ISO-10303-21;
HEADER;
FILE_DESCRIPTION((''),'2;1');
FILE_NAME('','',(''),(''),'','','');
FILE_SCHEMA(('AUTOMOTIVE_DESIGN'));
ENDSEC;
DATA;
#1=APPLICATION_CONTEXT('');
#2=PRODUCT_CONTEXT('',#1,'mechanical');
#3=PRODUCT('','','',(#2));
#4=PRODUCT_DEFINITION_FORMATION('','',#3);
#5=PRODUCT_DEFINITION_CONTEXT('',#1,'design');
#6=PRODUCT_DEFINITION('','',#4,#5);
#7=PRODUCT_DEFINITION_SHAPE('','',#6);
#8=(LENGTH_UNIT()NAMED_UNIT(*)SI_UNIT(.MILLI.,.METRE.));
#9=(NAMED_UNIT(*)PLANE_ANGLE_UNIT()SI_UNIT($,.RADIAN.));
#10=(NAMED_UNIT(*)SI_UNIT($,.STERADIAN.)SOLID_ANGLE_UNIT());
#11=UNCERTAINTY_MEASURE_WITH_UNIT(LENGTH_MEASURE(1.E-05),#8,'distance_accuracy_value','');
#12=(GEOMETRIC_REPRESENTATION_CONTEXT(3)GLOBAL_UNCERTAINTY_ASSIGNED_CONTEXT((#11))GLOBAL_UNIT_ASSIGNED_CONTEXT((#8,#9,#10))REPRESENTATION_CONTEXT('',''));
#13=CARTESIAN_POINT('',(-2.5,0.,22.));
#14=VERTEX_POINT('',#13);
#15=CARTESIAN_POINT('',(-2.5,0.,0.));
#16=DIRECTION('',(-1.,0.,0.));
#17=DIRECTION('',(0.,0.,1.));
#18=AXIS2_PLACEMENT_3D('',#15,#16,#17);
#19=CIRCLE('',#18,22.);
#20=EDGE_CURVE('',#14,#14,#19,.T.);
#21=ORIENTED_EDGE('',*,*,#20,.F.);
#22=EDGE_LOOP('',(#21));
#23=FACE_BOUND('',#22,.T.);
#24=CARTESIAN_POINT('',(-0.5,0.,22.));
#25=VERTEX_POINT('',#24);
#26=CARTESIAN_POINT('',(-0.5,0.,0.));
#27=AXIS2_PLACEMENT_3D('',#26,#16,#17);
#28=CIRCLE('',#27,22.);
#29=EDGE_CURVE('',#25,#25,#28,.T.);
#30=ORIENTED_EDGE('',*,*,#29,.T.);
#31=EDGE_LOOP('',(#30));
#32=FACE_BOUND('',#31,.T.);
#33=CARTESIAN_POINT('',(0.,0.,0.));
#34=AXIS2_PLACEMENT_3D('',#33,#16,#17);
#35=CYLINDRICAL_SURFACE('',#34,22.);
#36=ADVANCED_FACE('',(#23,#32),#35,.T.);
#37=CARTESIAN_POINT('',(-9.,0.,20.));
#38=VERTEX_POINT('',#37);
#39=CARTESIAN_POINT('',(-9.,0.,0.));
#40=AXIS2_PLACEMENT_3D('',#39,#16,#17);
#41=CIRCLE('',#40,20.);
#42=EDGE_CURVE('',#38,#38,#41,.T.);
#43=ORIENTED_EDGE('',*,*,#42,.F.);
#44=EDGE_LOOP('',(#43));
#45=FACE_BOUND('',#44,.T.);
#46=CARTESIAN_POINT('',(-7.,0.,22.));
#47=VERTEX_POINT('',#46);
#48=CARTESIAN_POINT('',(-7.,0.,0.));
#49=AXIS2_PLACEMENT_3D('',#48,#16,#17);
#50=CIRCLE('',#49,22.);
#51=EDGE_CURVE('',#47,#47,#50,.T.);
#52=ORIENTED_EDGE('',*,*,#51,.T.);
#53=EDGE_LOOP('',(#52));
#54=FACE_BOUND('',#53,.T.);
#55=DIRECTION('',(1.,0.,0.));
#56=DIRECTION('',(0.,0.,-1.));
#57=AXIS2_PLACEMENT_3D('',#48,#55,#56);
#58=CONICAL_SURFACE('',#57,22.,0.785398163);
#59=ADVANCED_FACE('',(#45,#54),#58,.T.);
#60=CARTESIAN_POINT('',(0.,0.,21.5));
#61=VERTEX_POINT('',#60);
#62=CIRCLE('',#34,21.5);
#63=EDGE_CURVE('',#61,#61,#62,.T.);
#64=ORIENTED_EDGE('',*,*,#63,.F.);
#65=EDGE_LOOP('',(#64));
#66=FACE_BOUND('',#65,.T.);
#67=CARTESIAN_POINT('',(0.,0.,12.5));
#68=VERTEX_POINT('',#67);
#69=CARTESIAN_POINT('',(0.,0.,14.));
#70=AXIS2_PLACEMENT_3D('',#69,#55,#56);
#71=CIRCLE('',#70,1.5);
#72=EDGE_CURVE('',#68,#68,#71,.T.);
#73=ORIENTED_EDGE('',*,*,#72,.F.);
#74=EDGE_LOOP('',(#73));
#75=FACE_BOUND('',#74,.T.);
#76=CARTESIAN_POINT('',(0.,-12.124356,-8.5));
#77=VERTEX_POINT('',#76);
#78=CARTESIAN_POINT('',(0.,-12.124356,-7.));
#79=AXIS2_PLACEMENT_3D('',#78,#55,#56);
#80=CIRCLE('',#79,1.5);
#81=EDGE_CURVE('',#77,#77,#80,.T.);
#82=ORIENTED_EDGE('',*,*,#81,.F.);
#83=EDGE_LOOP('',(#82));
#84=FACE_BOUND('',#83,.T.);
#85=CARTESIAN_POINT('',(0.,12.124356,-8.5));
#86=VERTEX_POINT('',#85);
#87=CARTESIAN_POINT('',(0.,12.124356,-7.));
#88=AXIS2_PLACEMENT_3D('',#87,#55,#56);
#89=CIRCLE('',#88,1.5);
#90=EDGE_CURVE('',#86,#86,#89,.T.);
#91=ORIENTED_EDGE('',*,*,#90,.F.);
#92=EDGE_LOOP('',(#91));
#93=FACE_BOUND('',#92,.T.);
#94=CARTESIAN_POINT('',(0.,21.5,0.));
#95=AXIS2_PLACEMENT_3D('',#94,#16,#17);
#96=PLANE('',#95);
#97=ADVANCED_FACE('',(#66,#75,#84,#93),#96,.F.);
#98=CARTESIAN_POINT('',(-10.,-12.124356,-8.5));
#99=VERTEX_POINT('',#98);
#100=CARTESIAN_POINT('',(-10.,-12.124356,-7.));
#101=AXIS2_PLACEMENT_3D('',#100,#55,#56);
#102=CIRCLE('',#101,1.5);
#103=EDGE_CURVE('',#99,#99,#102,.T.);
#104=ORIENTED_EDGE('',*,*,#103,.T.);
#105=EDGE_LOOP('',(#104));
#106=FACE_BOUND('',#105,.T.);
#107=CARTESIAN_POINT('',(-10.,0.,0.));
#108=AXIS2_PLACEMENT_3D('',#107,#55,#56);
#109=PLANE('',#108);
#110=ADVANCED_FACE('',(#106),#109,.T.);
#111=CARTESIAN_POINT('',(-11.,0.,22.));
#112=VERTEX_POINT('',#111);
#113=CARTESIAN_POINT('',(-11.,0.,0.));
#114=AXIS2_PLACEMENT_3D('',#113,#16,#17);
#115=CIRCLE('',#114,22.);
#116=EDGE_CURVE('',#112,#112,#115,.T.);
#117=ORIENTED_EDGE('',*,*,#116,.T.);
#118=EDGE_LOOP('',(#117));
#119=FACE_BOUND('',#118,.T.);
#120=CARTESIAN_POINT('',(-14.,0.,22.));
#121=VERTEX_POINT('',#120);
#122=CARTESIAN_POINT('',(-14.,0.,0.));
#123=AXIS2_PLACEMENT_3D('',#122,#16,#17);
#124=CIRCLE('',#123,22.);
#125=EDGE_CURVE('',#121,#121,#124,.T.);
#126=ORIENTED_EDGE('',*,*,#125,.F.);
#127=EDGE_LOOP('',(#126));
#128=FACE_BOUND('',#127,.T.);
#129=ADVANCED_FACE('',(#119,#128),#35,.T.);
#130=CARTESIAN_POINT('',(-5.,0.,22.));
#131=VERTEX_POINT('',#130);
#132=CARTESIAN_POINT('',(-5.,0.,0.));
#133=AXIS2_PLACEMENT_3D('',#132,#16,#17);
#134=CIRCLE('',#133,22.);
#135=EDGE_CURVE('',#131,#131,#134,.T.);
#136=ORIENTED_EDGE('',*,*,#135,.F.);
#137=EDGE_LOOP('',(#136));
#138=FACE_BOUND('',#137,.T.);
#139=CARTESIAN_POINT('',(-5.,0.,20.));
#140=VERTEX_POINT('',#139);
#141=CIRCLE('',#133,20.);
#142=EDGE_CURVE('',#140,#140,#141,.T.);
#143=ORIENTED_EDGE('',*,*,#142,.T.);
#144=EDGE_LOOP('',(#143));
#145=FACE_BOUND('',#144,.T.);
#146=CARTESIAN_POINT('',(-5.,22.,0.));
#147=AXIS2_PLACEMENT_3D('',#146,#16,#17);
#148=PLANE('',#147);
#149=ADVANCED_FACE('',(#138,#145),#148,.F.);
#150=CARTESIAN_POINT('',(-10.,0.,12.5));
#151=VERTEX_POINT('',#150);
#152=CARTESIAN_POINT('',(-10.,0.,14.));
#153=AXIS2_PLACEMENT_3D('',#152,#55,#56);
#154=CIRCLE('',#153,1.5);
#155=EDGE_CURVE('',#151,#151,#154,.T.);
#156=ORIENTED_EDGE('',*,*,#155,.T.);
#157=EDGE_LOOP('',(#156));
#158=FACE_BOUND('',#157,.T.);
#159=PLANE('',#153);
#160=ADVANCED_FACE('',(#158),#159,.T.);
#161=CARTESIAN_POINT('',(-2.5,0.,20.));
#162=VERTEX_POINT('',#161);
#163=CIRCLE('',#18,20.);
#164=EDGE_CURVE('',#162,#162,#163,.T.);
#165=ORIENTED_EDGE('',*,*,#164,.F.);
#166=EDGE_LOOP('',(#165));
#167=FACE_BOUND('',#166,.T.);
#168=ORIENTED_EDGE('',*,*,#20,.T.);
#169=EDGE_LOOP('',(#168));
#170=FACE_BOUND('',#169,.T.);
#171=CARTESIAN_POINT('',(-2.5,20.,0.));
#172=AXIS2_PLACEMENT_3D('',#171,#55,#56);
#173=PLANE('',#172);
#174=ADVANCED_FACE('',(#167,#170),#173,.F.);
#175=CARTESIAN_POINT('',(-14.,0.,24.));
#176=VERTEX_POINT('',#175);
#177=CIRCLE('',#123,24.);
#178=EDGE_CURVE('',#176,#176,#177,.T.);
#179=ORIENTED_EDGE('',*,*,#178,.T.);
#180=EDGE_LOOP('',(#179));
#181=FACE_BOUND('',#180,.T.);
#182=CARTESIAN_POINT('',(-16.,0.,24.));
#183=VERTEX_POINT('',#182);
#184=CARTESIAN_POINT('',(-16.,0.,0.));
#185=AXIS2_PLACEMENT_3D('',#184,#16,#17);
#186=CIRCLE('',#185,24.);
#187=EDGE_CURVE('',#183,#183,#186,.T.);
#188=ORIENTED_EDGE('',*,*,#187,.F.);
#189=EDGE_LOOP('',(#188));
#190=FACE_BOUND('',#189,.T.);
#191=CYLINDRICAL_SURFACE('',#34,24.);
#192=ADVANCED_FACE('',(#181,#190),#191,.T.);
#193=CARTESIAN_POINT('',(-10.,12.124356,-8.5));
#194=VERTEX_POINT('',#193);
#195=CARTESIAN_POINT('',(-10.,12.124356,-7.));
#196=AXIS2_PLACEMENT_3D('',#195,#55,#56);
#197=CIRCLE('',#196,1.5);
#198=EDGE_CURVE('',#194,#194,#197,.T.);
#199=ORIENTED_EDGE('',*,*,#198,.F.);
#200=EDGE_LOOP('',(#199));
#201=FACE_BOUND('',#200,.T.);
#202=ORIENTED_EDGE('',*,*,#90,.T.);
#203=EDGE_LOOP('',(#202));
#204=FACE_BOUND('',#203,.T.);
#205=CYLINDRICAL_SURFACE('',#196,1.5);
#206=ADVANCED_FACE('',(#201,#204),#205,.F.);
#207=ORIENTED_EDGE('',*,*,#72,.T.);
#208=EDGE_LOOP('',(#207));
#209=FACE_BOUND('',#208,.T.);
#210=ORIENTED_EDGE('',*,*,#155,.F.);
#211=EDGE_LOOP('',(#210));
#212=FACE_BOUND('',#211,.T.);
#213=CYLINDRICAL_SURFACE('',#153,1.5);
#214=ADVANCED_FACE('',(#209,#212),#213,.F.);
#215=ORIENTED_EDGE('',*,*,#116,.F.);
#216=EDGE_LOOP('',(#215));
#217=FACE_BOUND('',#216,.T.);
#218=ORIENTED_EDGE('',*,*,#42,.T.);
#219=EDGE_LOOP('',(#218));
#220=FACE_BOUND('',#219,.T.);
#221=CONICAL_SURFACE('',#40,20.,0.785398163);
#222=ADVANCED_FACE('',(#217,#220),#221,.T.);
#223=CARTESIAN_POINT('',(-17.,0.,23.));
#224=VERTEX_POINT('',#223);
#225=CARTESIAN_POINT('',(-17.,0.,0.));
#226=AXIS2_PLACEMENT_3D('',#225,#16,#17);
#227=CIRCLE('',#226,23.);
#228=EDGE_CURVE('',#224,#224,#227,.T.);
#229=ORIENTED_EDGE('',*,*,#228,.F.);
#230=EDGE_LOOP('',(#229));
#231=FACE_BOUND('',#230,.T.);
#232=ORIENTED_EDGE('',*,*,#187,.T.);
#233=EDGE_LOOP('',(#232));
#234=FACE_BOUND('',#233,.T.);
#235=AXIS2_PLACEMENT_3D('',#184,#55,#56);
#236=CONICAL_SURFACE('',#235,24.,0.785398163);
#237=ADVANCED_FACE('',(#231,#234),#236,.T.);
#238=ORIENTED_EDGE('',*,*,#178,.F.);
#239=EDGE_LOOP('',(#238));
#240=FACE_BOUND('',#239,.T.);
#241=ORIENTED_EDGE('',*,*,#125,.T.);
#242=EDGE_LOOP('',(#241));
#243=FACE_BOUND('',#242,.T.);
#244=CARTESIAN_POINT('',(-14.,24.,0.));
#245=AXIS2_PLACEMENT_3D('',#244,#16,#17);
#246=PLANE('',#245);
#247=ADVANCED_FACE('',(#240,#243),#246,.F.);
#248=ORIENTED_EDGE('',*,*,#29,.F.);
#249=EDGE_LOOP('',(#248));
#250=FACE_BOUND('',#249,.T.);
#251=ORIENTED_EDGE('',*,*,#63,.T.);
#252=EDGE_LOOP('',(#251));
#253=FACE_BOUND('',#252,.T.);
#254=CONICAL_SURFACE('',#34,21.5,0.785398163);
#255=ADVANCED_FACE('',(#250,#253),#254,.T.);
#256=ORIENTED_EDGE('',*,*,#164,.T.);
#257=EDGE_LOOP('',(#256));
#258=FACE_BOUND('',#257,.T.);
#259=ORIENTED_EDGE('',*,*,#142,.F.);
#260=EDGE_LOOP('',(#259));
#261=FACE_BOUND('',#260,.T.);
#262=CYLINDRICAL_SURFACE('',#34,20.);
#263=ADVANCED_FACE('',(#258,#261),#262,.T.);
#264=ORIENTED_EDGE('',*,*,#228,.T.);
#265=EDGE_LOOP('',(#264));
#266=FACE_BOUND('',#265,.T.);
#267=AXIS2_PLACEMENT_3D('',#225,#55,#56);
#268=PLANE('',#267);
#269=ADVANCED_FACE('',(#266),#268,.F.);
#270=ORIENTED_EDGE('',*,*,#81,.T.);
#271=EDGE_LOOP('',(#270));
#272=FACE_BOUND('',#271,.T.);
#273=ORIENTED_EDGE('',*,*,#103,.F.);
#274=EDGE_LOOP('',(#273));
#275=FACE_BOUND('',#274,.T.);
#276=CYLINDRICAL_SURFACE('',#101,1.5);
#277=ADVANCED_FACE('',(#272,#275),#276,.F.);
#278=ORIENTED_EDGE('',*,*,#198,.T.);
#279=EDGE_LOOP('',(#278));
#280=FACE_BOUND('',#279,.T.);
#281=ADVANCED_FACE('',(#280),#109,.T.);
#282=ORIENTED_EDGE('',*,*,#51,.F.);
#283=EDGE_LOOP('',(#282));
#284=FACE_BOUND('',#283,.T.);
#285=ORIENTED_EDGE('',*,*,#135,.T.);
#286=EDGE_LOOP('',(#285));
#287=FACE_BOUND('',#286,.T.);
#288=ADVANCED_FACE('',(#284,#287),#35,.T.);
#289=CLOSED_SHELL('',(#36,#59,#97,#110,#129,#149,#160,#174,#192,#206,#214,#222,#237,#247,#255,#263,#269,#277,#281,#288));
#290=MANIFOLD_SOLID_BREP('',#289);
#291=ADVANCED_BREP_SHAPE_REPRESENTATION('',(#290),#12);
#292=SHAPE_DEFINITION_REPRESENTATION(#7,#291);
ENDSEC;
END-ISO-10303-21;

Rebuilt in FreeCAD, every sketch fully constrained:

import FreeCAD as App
import Part
import Sketcher


def add_polygon(sketch, points):
    """Adds a closed chain of lines whose ends are joined by coincident constraints."""
    first, n = sketch.GeometryCount, len(points)
    for a, b in zip(points, points[1:] + points[:1]):
        sketch.addGeometry(Part.LineSegment(App.Vector(*a, 0), App.Vector(*b, 0)), False)
    for i in range(n):
        sketch.addConstraint(Sketcher.Constraint("Coincident", first + i, 2, first + (i + 1) % n, 1))

doc = App.newDocument("Part")
body = doc.addObject("PartDesign::Body", "Body")

# Sketch on XY plane
sketch1 = body.newObject("Sketcher::SketchObject", "Sketch")
sketch1.AttachmentSupport = (doc.getObject("XY_Plane"), [""])
sketch1.MapMode = "FlatFace"
add_polygon(sketch1, [(-17, 23), (-17, 0), (0, 0), (0, 21.5), (-0.5, 22), (-2.5, 22), (-2.5, 20), (-5, 20), (-5, 22), (-7, 22), (-9, 20), (-11, 22), (-14, 22), (-14, 24), (-16, 24)])  # lines 0-14
sketch1.addConstraint(Sketcher.Constraint("Vertical", 0))
sketch1.addConstraint(Sketcher.Constraint("Horizontal", 1))
sketch1.addConstraint(Sketcher.Constraint("Vertical", 2))
sketch1.addConstraint(Sketcher.Constraint("Horizontal", 4))
sketch1.addConstraint(Sketcher.Constraint("Vertical", 5))
sketch1.addConstraint(Sketcher.Constraint("Horizontal", 6))
sketch1.addConstraint(Sketcher.Constraint("Vertical", 7))
sketch1.addConstraint(Sketcher.Constraint("Horizontal", 8))
sketch1.addConstraint(Sketcher.Constraint("Horizontal", 11))
sketch1.addConstraint(Sketcher.Constraint("Vertical", 12))
sketch1.addConstraint(Sketcher.Constraint("Horizontal", 13))
sketch1.addConstraint(Sketcher.Constraint("Coincident", 1, 2, -1, 1))
sketch1.addConstraint(Sketcher.Constraint("Perpendicular", 3, 9))
sketch1.addConstraint(Sketcher.Constraint("Perpendicular", 9, 10))
sketch1.addConstraint(Sketcher.Constraint("Perpendicular", 10, 14))
sketch1.addConstraint(Sketcher.Constraint("Horizontal", 4, 2, 7, 2))
sketch1.addConstraint(Sketcher.Constraint("Horizontal", 6, 2, 9, 2))
sketch1.addConstraint(Sketcher.Constraint("Horizontal", 8, 2, 10, 2))
sketch1.addConstraint(Sketcher.Constraint("Equal", 4, 8))
sketch1.addConstraint(Sketcher.Constraint("Equal", 8, 13))
sketch1.addConstraint(Sketcher.Constraint("Equal", 13, 5))
sketch1.addConstraint(Sketcher.Constraint("Equal", 7, 12))
sketch1.addConstraint(Sketcher.Constraint("Equal", 9, 10))
sketch1.addConstraint(Sketcher.Constraint("DistanceX", 1, 1, 1, 2, 17.0))
sketch1.addConstraint(Sketcher.Constraint("DistanceX", 4, 2, 4, 1, 2.0))
sketch1.addConstraint(Sketcher.Constraint("DistanceX", 11, 2, 11, 1, 3.0))
sketch1.addConstraint(Sketcher.Constraint("DistanceY", 0, 2, 0, 1, 23.0))
sketch1.addConstraint(Sketcher.Constraint("DistanceX", 6, 2, 6, 1, 2.5))
sketch1.addConstraint(Sketcher.Constraint("DistanceY", 2, 1, 2, 2, 21.5))
revolution = body.newObject("PartDesign::Revolution", "Revolution")
revolution.Profile = sketch1
revolution.ReferenceAxis = (sketch1, ["H_Axis"])
revolution.Angle = 360

# Sketch on YZ plane
sketch2 = body.newObject("Sketcher::SketchObject", "Sketch001")
sketch2.AttachmentSupport = (doc.getObject("YZ_Plane"), [""])
sketch2.MapMode = "FlatFace"
sketch2.addGeometry(Part.Circle(App.Vector(12.1, -7, 0), App.Vector(0, 0, 1), 1.5), False)
sketch2.addGeometry(Part.Circle(App.Vector(-12.1, -7, 0), App.Vector(0, 0, 1), 1.5), False)
sketch2.addGeometry(Part.Circle(App.Vector(0, 14, 0), App.Vector(0, 0, 1), 1.5), False)
sketch2.addConstraint(Sketcher.Constraint("Equal", 0, 1))
sketch2.addConstraint(Sketcher.Constraint("Equal", 1, 2))
sketch2.addConstraint(Sketcher.Constraint("Symmetric", 0, 3, 1, 3, -2))
sketch2.addConstraint(Sketcher.Constraint("PointOnObject", 2, 3, -2))
sketch2.addConstraint(Sketcher.Constraint("Diameter", 0, 3.0))
sketch2.addConstraint(Sketcher.Constraint("DistanceY", 0, 3, -1, 1, 7.0))
sketch2.addConstraint(Sketcher.Constraint("DistanceY", -1, 1, 2, 3, 14.0))
sketch2.addConstraint(Sketcher.Constraint("DistanceX", 1, 3, 0, 3, 24.248711))
pocket1 = body.newObject("PartDesign::Pocket", "Pocket")
pocket1.Profile = sketch2
pocket1.Length = 10

doc.recompute()
